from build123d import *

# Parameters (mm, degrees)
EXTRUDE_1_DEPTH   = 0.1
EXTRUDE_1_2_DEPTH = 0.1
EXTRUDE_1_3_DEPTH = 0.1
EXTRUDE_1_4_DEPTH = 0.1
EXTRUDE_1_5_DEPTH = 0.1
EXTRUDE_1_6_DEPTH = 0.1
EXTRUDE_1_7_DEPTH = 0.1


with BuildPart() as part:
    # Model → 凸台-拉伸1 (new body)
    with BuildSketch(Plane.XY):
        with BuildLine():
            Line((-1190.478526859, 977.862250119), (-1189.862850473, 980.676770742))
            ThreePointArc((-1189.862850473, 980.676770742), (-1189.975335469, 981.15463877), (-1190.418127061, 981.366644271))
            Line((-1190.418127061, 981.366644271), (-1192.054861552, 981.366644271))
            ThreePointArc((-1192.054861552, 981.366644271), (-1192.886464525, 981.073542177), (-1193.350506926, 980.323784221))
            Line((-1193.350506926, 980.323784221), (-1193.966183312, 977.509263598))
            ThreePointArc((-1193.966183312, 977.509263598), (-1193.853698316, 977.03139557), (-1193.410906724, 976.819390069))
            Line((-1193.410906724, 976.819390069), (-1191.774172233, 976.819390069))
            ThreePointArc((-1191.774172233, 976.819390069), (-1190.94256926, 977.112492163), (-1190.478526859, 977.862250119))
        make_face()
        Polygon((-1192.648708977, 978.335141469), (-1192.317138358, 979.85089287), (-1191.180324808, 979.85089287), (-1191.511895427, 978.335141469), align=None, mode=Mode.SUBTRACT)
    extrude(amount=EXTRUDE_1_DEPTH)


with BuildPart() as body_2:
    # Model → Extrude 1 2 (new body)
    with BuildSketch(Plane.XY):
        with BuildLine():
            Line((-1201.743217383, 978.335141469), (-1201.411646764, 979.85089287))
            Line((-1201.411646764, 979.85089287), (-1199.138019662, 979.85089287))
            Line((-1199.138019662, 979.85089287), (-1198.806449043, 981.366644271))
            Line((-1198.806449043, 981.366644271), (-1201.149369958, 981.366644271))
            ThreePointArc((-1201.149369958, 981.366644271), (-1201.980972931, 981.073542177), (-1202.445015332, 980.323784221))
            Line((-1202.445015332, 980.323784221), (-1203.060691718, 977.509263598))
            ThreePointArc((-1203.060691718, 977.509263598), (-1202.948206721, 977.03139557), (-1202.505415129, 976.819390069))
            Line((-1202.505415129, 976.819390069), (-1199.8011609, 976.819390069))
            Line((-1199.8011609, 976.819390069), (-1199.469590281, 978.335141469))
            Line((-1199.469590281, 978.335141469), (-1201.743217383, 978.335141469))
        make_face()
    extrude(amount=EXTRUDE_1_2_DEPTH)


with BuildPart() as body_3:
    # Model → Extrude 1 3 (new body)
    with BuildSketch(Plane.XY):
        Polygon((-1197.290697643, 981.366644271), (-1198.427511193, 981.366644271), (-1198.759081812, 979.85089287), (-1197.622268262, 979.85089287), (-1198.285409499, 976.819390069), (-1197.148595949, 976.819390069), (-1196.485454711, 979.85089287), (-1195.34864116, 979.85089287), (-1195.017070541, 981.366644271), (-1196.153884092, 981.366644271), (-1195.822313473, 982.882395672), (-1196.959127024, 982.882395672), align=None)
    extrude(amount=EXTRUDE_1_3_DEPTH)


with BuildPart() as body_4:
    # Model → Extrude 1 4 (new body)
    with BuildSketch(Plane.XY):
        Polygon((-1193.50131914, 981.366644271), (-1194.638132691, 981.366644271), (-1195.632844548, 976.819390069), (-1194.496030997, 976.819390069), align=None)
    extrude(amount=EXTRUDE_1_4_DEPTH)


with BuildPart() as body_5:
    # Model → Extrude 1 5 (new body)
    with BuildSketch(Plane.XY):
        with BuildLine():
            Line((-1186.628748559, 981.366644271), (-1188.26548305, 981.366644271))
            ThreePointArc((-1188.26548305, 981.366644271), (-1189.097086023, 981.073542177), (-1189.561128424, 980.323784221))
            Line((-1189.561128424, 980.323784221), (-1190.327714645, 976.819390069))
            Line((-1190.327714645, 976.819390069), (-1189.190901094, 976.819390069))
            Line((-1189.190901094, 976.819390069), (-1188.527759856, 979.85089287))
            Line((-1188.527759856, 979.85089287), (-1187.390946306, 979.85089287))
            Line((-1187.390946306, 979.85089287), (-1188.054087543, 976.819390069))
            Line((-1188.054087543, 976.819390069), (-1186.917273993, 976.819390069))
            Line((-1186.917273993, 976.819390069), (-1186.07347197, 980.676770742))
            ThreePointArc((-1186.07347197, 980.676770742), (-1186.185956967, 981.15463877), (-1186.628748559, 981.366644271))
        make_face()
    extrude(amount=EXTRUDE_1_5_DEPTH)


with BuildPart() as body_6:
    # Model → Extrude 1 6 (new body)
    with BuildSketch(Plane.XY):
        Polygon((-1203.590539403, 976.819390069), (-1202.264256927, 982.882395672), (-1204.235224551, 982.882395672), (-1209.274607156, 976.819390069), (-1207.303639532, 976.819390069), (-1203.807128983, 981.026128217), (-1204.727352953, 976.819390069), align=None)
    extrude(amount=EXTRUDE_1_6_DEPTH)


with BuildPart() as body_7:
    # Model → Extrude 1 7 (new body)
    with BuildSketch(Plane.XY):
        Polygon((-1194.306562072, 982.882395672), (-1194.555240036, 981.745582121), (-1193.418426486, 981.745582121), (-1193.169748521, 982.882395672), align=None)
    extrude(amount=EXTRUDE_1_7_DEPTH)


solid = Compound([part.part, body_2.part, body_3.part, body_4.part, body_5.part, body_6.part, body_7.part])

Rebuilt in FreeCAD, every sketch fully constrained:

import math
import FreeCAD as App
import Part
import Sketcher
Q = App.Units.Quantity

doc = App.newDocument("Part")
params = doc.addObject("Spreadsheet::Sheet", "Params")
for row, (alias, value) in enumerate([
    ("pad1_length", "0.1 mm"),
    ("pad2_length", "0.1 mm"),
    ("pad3_length", "0.1 mm"),
    ("pad4_length", "0.1 mm"),
    ("pad5_length", "0.1 mm"),
    ("pad6_length", "0.1 mm"),
    ("pad7_length", "0.1 mm"),
], start=1):
    params.set(f"A{row}", alias)
    params.set(f"B{row}", "=" + value)
    params.setAlias(f"B{row}", alias)

body = doc.addObject("PartDesign::Body", "Body")

sketch1 = body.newObject("Sketcher::SketchObject", "Sketch")
sketch1.AttachmentSupport = (doc.getObject("XY_Plane"), [""])
sketch1.MapMode = "FlatFace"
sketch1.addGeometry(Part.LineSegment(App.Vector(-1190.5, 977.9, 0), App.Vector(-1189.9, 980.7, 0)), False)
sketch1.addGeometry(Part.ArcOfCircle(Part.Circle(App.Vector(-1190.4, 980.8, 0), App.Vector(0, 0, 1), 0.6), math.radians(-12), math.radians(90)), False)
sketch1.addGeometry(Part.LineSegment(App.Vector(-1190.4, 981.4, 0), App.Vector(-1192.1, 981.4, 0)), False)
sketch1.addGeometry(Part.ArcOfCircle(Part.Circle(App.Vector(-1192.1, 980, 0), App.Vector(0, 0, 1), 1.3), math.radians(90), math.radians(168)), False)
sketch1.addGeometry(Part.LineSegment(App.Vector(-1193.4, 980.3, 0), App.Vector(-1194, 977.5, 0)), False)
sketch1.addGeometry(Part.ArcOfCircle(Part.Circle(App.Vector(-1193.4, 977.4, 0), App.Vector(0, 0, 1), 0.6), math.radians(168), math.radians(270)), False)
sketch1.addGeometry(Part.LineSegment(App.Vector(-1193.4, 976.8, 0), App.Vector(-1191.8, 976.8, 0)), False)
sketch1.addGeometry(Part.ArcOfCircle(Part.Circle(App.Vector(-1191.8, 978.1, 0), App.Vector(0, 0, 1), 1.3), math.radians(-90), math.radians(-12)), False)
sketch1.addGeometry(Part.LineSegment(App.Vector(-1191.5, 978.3, 0), App.Vector(-1192.6, 978.3, 0)), False)
sketch1.addGeometry(Part.LineSegment(App.Vector(-1192.6, 978.3, 0), App.Vector(-1192.3, 979.9, 0)), False)
sketch1.addGeometry(Part.LineSegment(App.Vector(-1192.3, 979.9, 0), App.Vector(-1191.2, 979.9, 0)), False)
sketch1.addGeometry(Part.LineSegment(App.Vector(-1191.2, 979.9, 0), App.Vector(-1191.5, 978.3, 0)), False)
sketch1.addConstraint(Sketcher.Constraint("Tangent", 0, 2, 1, 1))
sketch1.addConstraint(Sketcher.Constraint("Tangent", 1, 2, 2, 1))
sketch1.addConstraint(Sketcher.Constraint("Tangent", 2, 2, 3, 1))
sketch1.addConstraint(Sketcher.Constraint("Tangent", 3, 2, 4, 1))
sketch1.addConstraint(Sketcher.Constraint("Tangent", 4, 2, 5, 1))
sketch1.addConstraint(Sketcher.Constraint("Tangent", 5, 2, 6, 1))
sketch1.addConstraint(Sketcher.Constraint("Tangent", 6, 2, 7, 1))
sketch1.addConstraint(Sketcher.Constraint("Tangent", 7, 2, 0, 1))
sketch1.addConstraint(Sketcher.Constraint("Coincident", 8, 2, 9, 1))
sketch1.addConstraint(Sketcher.Constraint("Coincident", 9, 2, 10, 1))
sketch1.addConstraint(Sketcher.Constraint("Coincident", 10, 2, 11, 1))
sketch1.addConstraint(Sketcher.Constraint("Coincident", 11, 2, 8, 1))
sketch1.addConstraint(Sketcher.Constraint("Horizontal", 2))
sketch1.addConstraint(Sketcher.Constraint("Horizontal", 6))
sketch1.addConstraint(Sketcher.Constraint("Horizontal", 8))
sketch1.addConstraint(Sketcher.Constraint("Horizontal", 10))
sketch1.addConstraint(Sketcher.Constraint("Equal", 1, 5))
sketch1.addConstraint(Sketcher.Constraint("Equal", 3, 7))
sketch1.addConstraint(Sketcher.Constraint("Parallel", 0, 4))
sketch1.addConstraint(Sketcher.Constraint("Parallel", 4, 9))
sketch1.addConstraint(Sketcher.Constraint("Parallel", 9, 11))
sketch1.addConstraint(Sketcher.Constraint("Radius", 1, Q("0.568407 mm")))
sketch1.addConstraint(Sketcher.Constraint("Radius", 3, Q("1.326282 mm")))
sketch1.addConstraint(Sketcher.Constraint("DistanceY", 7, 3, 0, 2, Q("2.531098 mm")))
sketch1.addConstraint(Sketcher.Constraint("DistanceX", 5, 3, 3, 2, Q("0.0604 mm")))
sketch1.addConstraint(Sketcher.Constraint("DistanceX", 2, 2, 2, 1, Q("1.636734 mm")))
sketch1.addConstraint(Sketcher.Constraint("DistanceX", 8, 2, 8, 1, Q("1.136814 mm")))
sketch1.addConstraint(Sketcher.Constraint("DistanceX", 3, 3, -1, 1, Q("1192.054862 mm")))
sketch1.addConstraint(Sketcher.Constraint("DistanceY", -1, 1, 3, 3, Q("980.040362 mm")))
sketch1.addConstraint(Sketcher.Constraint("DistanceX", 8, 2, -1, 1, Q("1192.648709 mm")))
sketch1.addConstraint(Sketcher.Constraint("DistanceY", -1, 1, 8, 2, Q("978.335141 mm")))
sketch1.addConstraint(Sketcher.Constraint("DistanceX", 9, 2, -1, 1, Q("1192.317138 mm")))
pad1 = body.newObject("PartDesign::Pad", "Pad")
pad1.Profile = sketch1
pad1.setExpression("Length", "Params.pad1_length")
body2 = doc.addObject("PartDesign::Body", "Body001")

sketch2 = body2.newObject("Sketcher::SketchObject", "Sketch001")
sketch2.AttachmentSupport = (doc.getObject("XY_Plane001"), [""])
sketch2.MapMode = "FlatFace"
sketch2.addGeometry(Part.LineSegment(App.Vector(-1201.7, 978.3, 0), App.Vector(-1201.4, 979.9, 0)), False)
sketch2.addGeometry(Part.LineSegment(App.Vector(-1201.4, 979.9, 0), App.Vector(-1199.1, 979.9, 0)), False)
sketch2.addGeometry(Part.LineSegment(App.Vector(-1199.1, 979.9, 0), App.Vector(-1198.8, 981.4, 0)), False)
sketch2.addGeometry(Part.LineSegment(App.Vector(-1198.8, 981.4, 0), App.Vector(-1201.1, 981.4, 0)), False)
sketch2.addGeometry(Part.ArcOfCircle(Part.Circle(App.Vector(-1201.1, 980, 0), App.Vector(0, 0, 1), 1.3), math.radians(90), math.radians(168)), False)
sketch2.addGeometry(Part.LineSegment(App.Vector(-1202.4, 980.3, 0), App.Vector(-1203.1, 977.5, 0)), False)
sketch2.addGeometry(Part.ArcOfCircle(Part.Circle(App.Vector(-1202.5, 977.4, 0), App.Vector(0, 0, 1), 0.6), math.radians(168), math.radians(270)), False)
sketch2.addGeometry(Part.LineSegment(App.Vector(-1202.5, 976.8, 0), App.Vector(-1199.8, 976.8, 0)), False)
sketch2.addGeometry(Part.LineSegment(App.Vector(-1199.8, 976.8, 0), App.Vector(-1199.5, 978.3, 0)), False)
sketch2.addGeometry(Part.LineSegment(App.Vector(-1199.5, 978.3, 0), App.Vector(-1201.7, 978.3, 0)), False)
sketch2.addConstraint(Sketcher.Constraint("Coincident", 0, 2, 1, 1))
sketch2.addConstraint(Sketcher.Constraint("Coincident", 1, 2, 2, 1))
sketch2.addConstraint(Sketcher.Constraint("Coincident", 2, 2, 3, 1))
sketch2.addConstraint(Sketcher.Constraint("Tangent", 3, 2, 4, 1))
sketch2.addConstraint(Sketcher.Constraint("Tangent", 4, 2, 5, 1))
sketch2.addConstraint(Sketcher.Constraint("Tangent", 5, 2, 6, 1))
sketch2.addConstraint(Sketcher.Constraint("Tangent", 6, 2, 7, 1))
sketch2.addConstraint(Sketcher.Constraint("Coincident", 7, 2, 8, 1))
sketch2.addConstraint(Sketcher.Constraint("Coincident", 8, 2, 9, 1))
sketch2.addConstraint(Sketcher.Constraint("Coincident", 9, 2, 0, 1))
sketch2.addConstraint(Sketcher.Constraint("Horizontal", 1))
sketch2.addConstraint(Sketcher.Constraint("Horizontal", 3))
sketch2.addConstraint(Sketcher.Constraint("Horizontal", 7))
sketch2.addConstraint(Sketcher.Constraint("Horizontal", 9))
sketch2.addConstraint(Sketcher.Constraint("Parallel", 0, 2))
sketch2.addConstraint(Sketcher.Constraint("Parallel", 2, 5))
sketch2.addConstraint(Sketcher.Constraint("Parallel", 5, 8))
sketch2.addConstraint(Sketcher.Constraint("Equal", 1, 9))
sketch2.addConstraint(Sketcher.Constraint("Equal", 0, 2))
sketch2.addConstraint(Sketcher.Constraint("Equal", 2, 8))
sketch2.addConstraint(Sketcher.Constraint("Radius", 4, Q("1.326282 mm")))
sketch2.addConstraint(Sketcher.Constraint("Radius", 6, Q("0.568407 mm")))
sketch2.addConstraint(Sketcher.Constraint("DistanceX", 3, 2, 3, 1, Q("2.342921 mm")))
sketch2.addConstraint(Sketcher.Constraint("DistanceX", 6, 3, 4, 2, Q("0.0604 mm")))
sketch2.addConstraint(Sketcher.Constraint("DistanceY", 5, 2, 4, 3, Q("2.531098 mm")))
sketch2.addConstraint(Sketcher.Constraint("DistanceX", 1, 1, 1, 2, Q("2.273627 mm")))
sketch2.addConstraint(Sketcher.Constraint("DistanceX", 4, 3, -1, 1, Q("1201.14937 mm")))
sketch2.addConstraint(Sketcher.Constraint("DistanceY", -1, 1, 4, 3, Q("980.040362 mm")))
pad2 = body2.newObject("PartDesign::Pad", "Pad001")
pad2.Profile = sketch2
pad2.setExpression("Length", "Params.pad2_length")
body3 = doc.addObject("PartDesign::Body", "Body002")

sketch3 = body3.newObject("Sketcher::SketchObject", "Sketch002")
sketch3.AttachmentSupport = (doc.getObject("XY_Plane002"), [""])
sketch3.MapMode = "FlatFace"
sketch3.addGeometry(Part.LineSegment(App.Vector(-1197.3, 981.4, 0), App.Vector(-1198.4, 981.4, 0)), False)
sketch3.addGeometry(Part.LineSegment(App.Vector(-1198.4, 981.4, 0), App.Vector(-1198.8, 979.9, 0)), False)
sketch3.addGeometry(Part.LineSegment(App.Vector(-1198.8, 979.9, 0), App.Vector(-1197.6, 979.9, 0)), False)
sketch3.addGeometry(Part.LineSegment(App.Vector(-1197.6, 979.9, 0), App.Vector(-1198.3, 976.8, 0)), False)
sketch3.addGeometry(Part.LineSegment(App.Vector(-1198.3, 976.8, 0), App.Vector(-1197.1, 976.8, 0)), False)
sketch3.addGeometry(Part.LineSegment(App.Vector(-1197.1, 976.8, 0), App.Vector(-1196.5, 979.9, 0)), False)
sketch3.addGeometry(Part.LineSegment(App.Vector(-1196.5, 979.9, 0), App.Vector(-1195.3, 979.9, 0)), False)
sketch3.addGeometry(Part.LineSegment(App.Vector(-1195.3, 979.9, 0), App.Vector(-1195, 981.4, 0)), False)
sketch3.addGeometry(Part.LineSegment(App.Vector(-1195, 981.4, 0), App.Vector(-1196.2, 981.4, 0)), False)
sketch3.addGeometry(Part.LineSegment(App.Vector(-1196.2, 981.4, 0), App.Vector(-1195.8, 982.9, 0)), False)
sketch3.addGeometry(Part.LineSegment(App.Vector(-1195.8, 982.9, 0), App.Vector(-1197, 982.9, 0)), False)
sketch3.addGeometry(Part.LineSegment(App.Vector(-1197, 982.9, 0), App.Vector(-1197.3, 981.4, 0)), False)
sketch3.addConstraint(Sketcher.Constraint("Coincident", 0, 2, 1, 1))
sketch3.addConstraint(Sketcher.Constraint("Coincident", 1, 2, 2, 1))
sketch3.addConstraint(Sketcher.Constraint("Coincident", 2, 2, 3, 1))
sketch3.addConstraint(Sketcher.Constraint("Coincident", 3, 2, 4, 1))
sketch3.addConstraint(Sketcher.Constraint("Coincident", 4, 2, 5, 1))
sketch3.addConstraint(Sketcher.Constraint("Coincident", 5, 2, 6, 1))
sketch3.addConstraint(Sketcher.Constraint("Coincident", 6, 2, 7, 1))
sketch3.addConstraint(Sketcher.Constraint("Coincident", 7, 2, 8, 1))
sketch3.addConstraint(Sketcher.Constraint("Coincident", 8, 2, 9, 1))
sketch3.addConstraint(Sketcher.Constraint("Coincident", 9, 2, 10, 1))
sketch3.addConstraint(Sketcher.Constraint("Coincident", 10, 2, 11, 1))
sketch3.addConstraint(Sketcher.Constraint("Coincident", 11, 2, 0, 1))
sketch3.addConstraint(Sketcher.Constraint("Horizontal", 0))
sketch3.addConstraint(Sketcher.Constraint("Horizontal", 2))
sketch3.addConstraint(Sketcher.Constraint("Horizontal", 4))
sketch3.addConstraint(Sketcher.Constraint("Horizontal", 6))
sketch3.addConstraint(Sketcher.Constraint("Horizontal", 8))
sketch3.addConstraint(Sketcher.Constraint("Horizontal", 10))
sketch3.addConstraint(Sketcher.Constraint("Parallel", 1, 3))
sketch3.addConstraint(Sketcher.Constraint("Parallel", 3, 5))
sketch3.addConstraint(Sketcher.Constraint("Parallel", 5, 7))
sketch3.addConstraint(Sketcher.Constraint("Parallel", 7, 9))
sketch3.addConstraint(Sketcher.Constraint("Parallel", 9, 11))
sketch3.addConstraint(Sketcher.Constraint("Horizontal", 2, 2, 5, 2))
sketch3.addConstraint(Sketcher.Constraint("Horizontal", 0, 2, 7, 2))
sketch3.addConstraint(Sketcher.Constraint("Equal", 0, 2))
sketch3.addConstraint(Sketcher.Constraint("Equal", 2, 4))
sketch3.addConstraint(Sketcher.Constraint("Equal", 4, 6))
sketch3.addConstraint(Sketcher.Constraint("Equal", 6, 8))
sketch3.addConstraint(Sketcher.Constraint("Equal", 7, 9))
sketch3.addConstraint(Sketcher.Constraint("DistanceX", 0, 2, 3, 2, Q("0.142102 mm")))
sketch3.addConstraint(Sketcher.Constraint("DistanceX", 0, 2, 0, 1, Q("1.136814 mm")))
sketch3.addConstraint(Sketcher.Constraint("DistanceX", 0, 2, -1, 1, Q("1198.427511 mm")))
sketch3.addConstraint(Sketcher.Constraint("DistanceX", 1, 2, -1, 1, Q("1198.759082 mm")))
sketch3.addConstraint(Sketcher.Constraint("DistanceY", -1, 1, 3, 2, Q("976.81939 mm")))
sketch3.addConstraint(Sketcher.Constraint("DistanceY", 1, 2, 0, 2, Q("1.515751 mm")))
pad3 = body3.newObject("PartDesign::Pad", "Pad002")
pad3.Profile = sketch3
pad3.setExpression("Length", "Params.pad3_length")
body4 = doc.addObject("PartDesign::Body", "Body003")

sketch4 = body4.newObject("Sketcher::SketchObject", "Sketch003")
sketch4.AttachmentSupport = (doc.getObject("XY_Plane003"), [""])
sketch4.MapMode = "FlatFace"
sketch4.addGeometry(Part.LineSegment(App.Vector(-1193.5, 981.4, 0), App.Vector(-1194.6, 981.4, 0)), False)
sketch4.addGeometry(Part.LineSegment(App.Vector(-1194.6, 981.4, 0), App.Vector(-1195.6, 976.8, 0)), False)
sketch4.addGeometry(Part.LineSegment(App.Vector(-1195.6, 976.8, 0), App.Vector(-1194.5, 976.8, 0)), False)
sketch4.addGeometry(Part.LineSegment(App.Vector(-1194.5, 976.8, 0), App.Vector(-1193.5, 981.4, 0)), False)
sketch4.addConstraint(Sketcher.Constraint("Coincident", 0, 2, 1, 1))
sketch4.addConstraint(Sketcher.Constraint("Coincident", 1, 2, 2, 1))
sketch4.addConstraint(Sketcher.Constraint("Coincident", 2, 2, 3, 1))
sketch4.addConstraint(Sketcher.Constraint("Coincident", 3, 2, 0, 1))
sketch4.addConstraint(Sketcher.Constraint("Horizontal", 0))
sketch4.addConstraint(Sketcher.Constraint("Horizontal", 2))
sketch4.addConstraint(Sketcher.Constraint("Parallel", 1, 3))
sketch4.addConstraint(Sketcher.Constraint("DistanceX", 0, 2, 2, 2, Q("0.142102 mm")))
sketch4.addConstraint(Sketcher.Constraint("Distance", 1, Q("4.65478 mm")))
sketch4.addConstraint(Sketcher.Constraint("DistanceX", 0, 2, 0, 1, Q("1.136814 mm")))
sketch4.addConstraint(Sketcher.Constraint("DistanceY", -1, 1, 1, 2, Q("976.81939 mm")))
sketch4.addConstraint(Sketcher.Constraint("DistanceX", 2, 2, -1, 1, Q("1194.496031 mm")))
pad4 = body4.newObject("PartDesign::Pad", "Pad003")
pad4.Profile = sketch4
pad4.setExpression("Length", "Params.pad4_length")
body5 = doc.addObject("PartDesign::Body", "Body004")

sketch5 = body5.newObject("Sketcher::SketchObject", "Sketch004")
sketch5.AttachmentSupport = (doc.getObject("XY_Plane004"), [""])
sketch5.MapMode = "FlatFace"
sketch5.addGeometry(Part.LineSegment(App.Vector(-1186.628749, 981.366644, 0), App.Vector(-1188.265483, 981.366644, 0)), False)
sketch5.addGeometry(Part.ArcOfCircle(Part.Circle(App.Vector(-1188.265483, 980.040362, 0), App.Vector(0, 0, 1), 1.326282), math.radians(90), math.radians(167.660913)), False)
sketch5.addGeometry(Part.LineSegment(App.Vector(-1189.561128, 980.323784, 0), App.Vector(-1190.327715, 976.81939, 0)), False)
sketch5.addGeometry(Part.LineSegment(App.Vector(-1190.327715, 976.81939, 0), App.Vector(-1189.190901, 976.81939, 0)), False)
sketch5.addGeometry(Part.LineSegment(App.Vector(-1189.190901, 976.81939, 0), App.Vector(-1188.52776, 979.850893, 0)), False)
sketch5.addGeometry(Part.LineSegment(App.Vector(-1188.52776, 979.850893, 0), App.Vector(-1187.390946, 979.850893, 0)), False)
sketch5.addGeometry(Part.LineSegment(App.Vector(-1187.390946, 979.850893, 0), App.Vector(-1188.054088, 976.81939, 0)), False)
sketch5.addGeometry(Part.LineSegment(App.Vector(-1188.054088, 976.81939, 0), App.Vector(-1186.917274, 976.81939, 0)), False)
sketch5.addGeometry(Part.LineSegment(App.Vector(-1186.917274, 976.81939, 0), App.Vector(-1186.073472, 980.676771, 0)), False)
sketch5.addGeometry(Part.ArcOfCircle(Part.Circle(App.Vector(-1186.628749, 980.798237, 0), App.Vector(0, 0, 1), 0.568407), math.radians(-12.339087), math.radians(90)), False)
sketch5.addConstraint(Sketcher.Constraint("Tangent", 0, 2, 1, 1))
sketch5.addConstraint(Sketcher.Constraint("Tangent", 1, 2, 2, 1))
sketch5.addConstraint(Sketcher.Constraint("Coincident", 2, 2, 3, 1))
sketch5.addConstraint(Sketcher.Constraint("Coincident", 3, 2, 4, 1))
sketch5.addConstraint(Sketcher.Constraint("Coincident", 4, 2, 5, 1))
sketch5.addConstraint(Sketcher.Constraint("Coincident", 5, 2, 6, 1))
sketch5.addConstraint(Sketcher.Constraint("Coincident", 6, 2, 7, 1))
sketch5.addConstraint(Sketcher.Constraint("Coincident", 7, 2, 8, 1))
sketch5.addConstraint(Sketcher.Constraint("Tangent", 8, 2, 9, 1))
sketch5.addConstraint(Sketcher.Constraint("Tangent", 9, 2, 0, 1))
sketch5.addConstraint(Sketcher.Constraint("Horizontal", 0))
sketch5.addConstraint(Sketcher.Constraint("Horizontal", 3))
sketch5.addConstraint(Sketcher.Constraint("Horizontal", 5))
sketch5.addConstraint(Sketcher.Constraint("Horizontal", 7))
sketch5.addConstraint(Sketcher.Constraint("Parallel", 2, 4))
sketch5.addConstraint(Sketcher.Constraint("Parallel", 4, 6))
sketch5.addConstraint(Sketcher.Constraint("Parallel", 6, 8))
sketch5.addConstraint(Sketcher.Constraint("Horizontal", 3, 2, 6, 2))
sketch5.addConstraint(Sketcher.Constraint("Equal", 3, 5))
sketch5.addConstraint(Sketcher.Constraint("Equal", 5, 7))
sketch5.addConstraint(Sketcher.Constraint("Radius", 1, Q("1.326282 mm")))
sketch5.addConstraint(Sketcher.Constraint("Radius", 9, Q("0.568407 mm")))
sketch5.addConstraint(Sketcher.Constraint("DistanceX", 3, 2, -1, 1, Q("1189.190901 mm")))
sketch5.addConstraint(Sketcher.Constraint("Distance", 2, Q("3.58726 mm")))
sketch5.addConstraint(Sketcher.Constraint("DistanceX", 0, 2, 0, 1, Q("1.636734 mm")))
sketch5.addConstraint(Sketcher.Constraint("DistanceX", 3, 1, 3, 2, Q("1.136814 mm")))
sketch5.addConstraint(Sketcher.Constraint("DistanceY", -1, 1, 1, 3, Q("980.040362 mm")))
sketch5.addConstraint(Sketcher.Constraint("DistanceX", 4, 2, -1, 1, Q("1188.52776 mm")))
pad5 = body5.newObject("PartDesign::Pad", "Pad004")
pad5.Profile = sketch5
pad5.setExpression("Length", "Params.pad5_length")
body6 = doc.addObject("PartDesign::Body", "Body005")

sketch6 = body6.newObject("Sketcher::SketchObject", "Sketch005")
sketch6.AttachmentSupport = (doc.getObject("XY_Plane005"), [""])
sketch6.MapMode = "FlatFace"
sketch6.addGeometry(Part.LineSegment(App.Vector(-1203.6, 976.8, 0), App.Vector(-1202.3, 982.9, 0)), False)
sketch6.addGeometry(Part.LineSegment(App.Vector(-1202.3, 982.9, 0), App.Vector(-1204.2, 982.9, 0)), False)
sketch6.addGeometry(Part.LineSegment(App.Vector(-1204.2, 982.9, 0), App.Vector(-1209.3, 976.8, 0)), False)
sketch6.addGeometry(Part.LineSegment(App.Vector(-1209.3, 976.8, 0), App.Vector(-1207.3, 976.8, 0)), False)
sketch6.addGeometry(Part.LineSegment(App.Vector(-1207.3, 976.8, 0), App.Vector(-1203.8, 981, 0)), False)
sketch6.addGeometry(Part.LineSegment(App.Vector(-1203.8, 981, 0), App.Vector(-1204.7, 976.8, 0)), False)
sketch6.addGeometry(Part.LineSegment(App.Vector(-1204.7, 976.8, 0), App.Vector(-1203.6, 976.8, 0)), False)
sketch6.addConstraint(Sketcher.Constraint("Coincident", 0, 2, 1, 1))
sketch6.addConstraint(Sketcher.Constraint("Coincident", 1, 2, 2, 1))
sketch6.addConstraint(Sketcher.Constraint("Coincident", 2, 2, 3, 1))
sketch6.addConstraint(Sketcher.Constraint("Coincident", 3, 2, 4, 1))
sketch6.addConstraint(Sketcher.Constraint("Coincident", 4, 2, 5, 1))
sketch6.addConstraint(Sketcher.Constraint("Coincident", 5, 2, 6, 1))
sketch6.addConstraint(Sketcher.Constraint("Coincident", 6, 2, 0, 1))
sketch6.addConstraint(Sketcher.Constraint("Horizontal", 1))
sketch6.addConstraint(Sketcher.Constraint("Horizontal", 3))
sketch6.addConstraint(Sketcher.Constraint("Horizontal", 6))
sketch6.addConstraint(Sketcher.Constraint("Parallel", 2, 4))
sketch6.addConstraint(Sketcher.Constraint("Parallel", 0, 5))
sketch6.addConstraint(Sketcher.Constraint("Horizontal", 3, 2, 5, 2))
sketch6.addConstraint(Sketcher.Constraint("Equal", 1, 3))
sketch6.addConstraint(Sketcher.Constraint("DistanceX", 3, 2, 6, 2, Q("3.7131 mm")))
sketch6.addConstraint(Sketcher.Constraint("Distance", 2, Q("7.88387 mm")))
sketch6.addConstraint(Sketcher.Constraint("Distance", 4, Q("5.470122 mm")))
sketch6.addConstraint(Sketcher.Constraint("Distance", 5, Q("4.306212 mm")))
sketch6.addConstraint(Sketcher.Constraint("DistanceX", 1, 2, 1, 1, Q("1.970968 mm")))
sketch6.addConstraint(Sketcher.Constraint("DistanceY", -1, 1, 2, 2, Q("976.81939 mm")))
sketch6.addConstraint(Sketcher.Constraint("DistanceX", 3, 2, -1, 1, Q("1207.30364 mm")))
pad6 = body6.newObject("PartDesign::Pad", "Pad005")
pad6.Profile = sketch6
pad6.setExpression("Length", "Params.pad6_length")
body7 = doc.addObject("PartDesign::Body", "Body006")

sketch7 = body7.newObject("Sketcher::SketchObject", "Sketch006")
sketch7.AttachmentSupport = (doc.getObject("XY_Plane006"), [""])
sketch7.MapMode = "FlatFace"
sketch7.addGeometry(Part.LineSegment(App.Vector(-1194.3, 982.9, 0), App.Vector(-1194.6, 981.7, 0)), False)
sketch7.addGeometry(Part.LineSegment(App.Vector(-1194.6, 981.7, 0), App.Vector(-1193.4, 981.7, 0)), False)
sketch7.addGeometry(Part.LineSegment(App.Vector(-1193.4, 981.7, 0), App.Vector(-1193.2, 982.9, 0)), False)
sketch7.addGeometry(Part.LineSegment(App.Vector(-1193.2, 982.9, 0), App.Vector(-1194.3, 982.9, 0)), False)
sketch7.addConstraint(Sketcher.Constraint("Coincident", 0, 2, 1, 1))
sketch7.addConstraint(Sketcher.Constraint("Coincident", 1, 2, 2, 1))
sketch7.addConstraint(Sketcher.Constraint("Coincident", 2, 2, 3, 1))
sketch7.addConstraint(Sketcher.Constraint("Coincident", 3, 2, 0, 1))
sketch7.addConstraint(Sketcher.Constraint("Horizontal", 1))
sketch7.addConstraint(Sketcher.Constraint("Horizontal", 3))
sketch7.addConstraint(Sketcher.Constraint("Parallel", 0, 2))
sketch7.addConstraint(Sketcher.Constraint("DistanceX", 1, 1, 1, 2, Q("1.136814 mm")))
sketch7.addConstraint(Sketcher.Constraint("DistanceX", 0, 2, -1, 1, Q("1194.55524 mm")))
sketch7.addConstraint(Sketcher.Constraint("DistanceX", 2, 2, -1, 1, Q("1193.169749 mm")))
sketch7.addConstraint(Sketcher.Constraint("Distance", 0, Q("1.163695 mm")))
sketch7.addConstraint(Sketcher.Constraint("DistanceY", -1, 1, 0, 2, Q("981.745582 mm")))
pad7 = body7.newObject("PartDesign::Pad", "Pad006")
pad7.Profile = sketch7
pad7.setExpression("Length", "Params.pad7_length")

doc.recompute()
